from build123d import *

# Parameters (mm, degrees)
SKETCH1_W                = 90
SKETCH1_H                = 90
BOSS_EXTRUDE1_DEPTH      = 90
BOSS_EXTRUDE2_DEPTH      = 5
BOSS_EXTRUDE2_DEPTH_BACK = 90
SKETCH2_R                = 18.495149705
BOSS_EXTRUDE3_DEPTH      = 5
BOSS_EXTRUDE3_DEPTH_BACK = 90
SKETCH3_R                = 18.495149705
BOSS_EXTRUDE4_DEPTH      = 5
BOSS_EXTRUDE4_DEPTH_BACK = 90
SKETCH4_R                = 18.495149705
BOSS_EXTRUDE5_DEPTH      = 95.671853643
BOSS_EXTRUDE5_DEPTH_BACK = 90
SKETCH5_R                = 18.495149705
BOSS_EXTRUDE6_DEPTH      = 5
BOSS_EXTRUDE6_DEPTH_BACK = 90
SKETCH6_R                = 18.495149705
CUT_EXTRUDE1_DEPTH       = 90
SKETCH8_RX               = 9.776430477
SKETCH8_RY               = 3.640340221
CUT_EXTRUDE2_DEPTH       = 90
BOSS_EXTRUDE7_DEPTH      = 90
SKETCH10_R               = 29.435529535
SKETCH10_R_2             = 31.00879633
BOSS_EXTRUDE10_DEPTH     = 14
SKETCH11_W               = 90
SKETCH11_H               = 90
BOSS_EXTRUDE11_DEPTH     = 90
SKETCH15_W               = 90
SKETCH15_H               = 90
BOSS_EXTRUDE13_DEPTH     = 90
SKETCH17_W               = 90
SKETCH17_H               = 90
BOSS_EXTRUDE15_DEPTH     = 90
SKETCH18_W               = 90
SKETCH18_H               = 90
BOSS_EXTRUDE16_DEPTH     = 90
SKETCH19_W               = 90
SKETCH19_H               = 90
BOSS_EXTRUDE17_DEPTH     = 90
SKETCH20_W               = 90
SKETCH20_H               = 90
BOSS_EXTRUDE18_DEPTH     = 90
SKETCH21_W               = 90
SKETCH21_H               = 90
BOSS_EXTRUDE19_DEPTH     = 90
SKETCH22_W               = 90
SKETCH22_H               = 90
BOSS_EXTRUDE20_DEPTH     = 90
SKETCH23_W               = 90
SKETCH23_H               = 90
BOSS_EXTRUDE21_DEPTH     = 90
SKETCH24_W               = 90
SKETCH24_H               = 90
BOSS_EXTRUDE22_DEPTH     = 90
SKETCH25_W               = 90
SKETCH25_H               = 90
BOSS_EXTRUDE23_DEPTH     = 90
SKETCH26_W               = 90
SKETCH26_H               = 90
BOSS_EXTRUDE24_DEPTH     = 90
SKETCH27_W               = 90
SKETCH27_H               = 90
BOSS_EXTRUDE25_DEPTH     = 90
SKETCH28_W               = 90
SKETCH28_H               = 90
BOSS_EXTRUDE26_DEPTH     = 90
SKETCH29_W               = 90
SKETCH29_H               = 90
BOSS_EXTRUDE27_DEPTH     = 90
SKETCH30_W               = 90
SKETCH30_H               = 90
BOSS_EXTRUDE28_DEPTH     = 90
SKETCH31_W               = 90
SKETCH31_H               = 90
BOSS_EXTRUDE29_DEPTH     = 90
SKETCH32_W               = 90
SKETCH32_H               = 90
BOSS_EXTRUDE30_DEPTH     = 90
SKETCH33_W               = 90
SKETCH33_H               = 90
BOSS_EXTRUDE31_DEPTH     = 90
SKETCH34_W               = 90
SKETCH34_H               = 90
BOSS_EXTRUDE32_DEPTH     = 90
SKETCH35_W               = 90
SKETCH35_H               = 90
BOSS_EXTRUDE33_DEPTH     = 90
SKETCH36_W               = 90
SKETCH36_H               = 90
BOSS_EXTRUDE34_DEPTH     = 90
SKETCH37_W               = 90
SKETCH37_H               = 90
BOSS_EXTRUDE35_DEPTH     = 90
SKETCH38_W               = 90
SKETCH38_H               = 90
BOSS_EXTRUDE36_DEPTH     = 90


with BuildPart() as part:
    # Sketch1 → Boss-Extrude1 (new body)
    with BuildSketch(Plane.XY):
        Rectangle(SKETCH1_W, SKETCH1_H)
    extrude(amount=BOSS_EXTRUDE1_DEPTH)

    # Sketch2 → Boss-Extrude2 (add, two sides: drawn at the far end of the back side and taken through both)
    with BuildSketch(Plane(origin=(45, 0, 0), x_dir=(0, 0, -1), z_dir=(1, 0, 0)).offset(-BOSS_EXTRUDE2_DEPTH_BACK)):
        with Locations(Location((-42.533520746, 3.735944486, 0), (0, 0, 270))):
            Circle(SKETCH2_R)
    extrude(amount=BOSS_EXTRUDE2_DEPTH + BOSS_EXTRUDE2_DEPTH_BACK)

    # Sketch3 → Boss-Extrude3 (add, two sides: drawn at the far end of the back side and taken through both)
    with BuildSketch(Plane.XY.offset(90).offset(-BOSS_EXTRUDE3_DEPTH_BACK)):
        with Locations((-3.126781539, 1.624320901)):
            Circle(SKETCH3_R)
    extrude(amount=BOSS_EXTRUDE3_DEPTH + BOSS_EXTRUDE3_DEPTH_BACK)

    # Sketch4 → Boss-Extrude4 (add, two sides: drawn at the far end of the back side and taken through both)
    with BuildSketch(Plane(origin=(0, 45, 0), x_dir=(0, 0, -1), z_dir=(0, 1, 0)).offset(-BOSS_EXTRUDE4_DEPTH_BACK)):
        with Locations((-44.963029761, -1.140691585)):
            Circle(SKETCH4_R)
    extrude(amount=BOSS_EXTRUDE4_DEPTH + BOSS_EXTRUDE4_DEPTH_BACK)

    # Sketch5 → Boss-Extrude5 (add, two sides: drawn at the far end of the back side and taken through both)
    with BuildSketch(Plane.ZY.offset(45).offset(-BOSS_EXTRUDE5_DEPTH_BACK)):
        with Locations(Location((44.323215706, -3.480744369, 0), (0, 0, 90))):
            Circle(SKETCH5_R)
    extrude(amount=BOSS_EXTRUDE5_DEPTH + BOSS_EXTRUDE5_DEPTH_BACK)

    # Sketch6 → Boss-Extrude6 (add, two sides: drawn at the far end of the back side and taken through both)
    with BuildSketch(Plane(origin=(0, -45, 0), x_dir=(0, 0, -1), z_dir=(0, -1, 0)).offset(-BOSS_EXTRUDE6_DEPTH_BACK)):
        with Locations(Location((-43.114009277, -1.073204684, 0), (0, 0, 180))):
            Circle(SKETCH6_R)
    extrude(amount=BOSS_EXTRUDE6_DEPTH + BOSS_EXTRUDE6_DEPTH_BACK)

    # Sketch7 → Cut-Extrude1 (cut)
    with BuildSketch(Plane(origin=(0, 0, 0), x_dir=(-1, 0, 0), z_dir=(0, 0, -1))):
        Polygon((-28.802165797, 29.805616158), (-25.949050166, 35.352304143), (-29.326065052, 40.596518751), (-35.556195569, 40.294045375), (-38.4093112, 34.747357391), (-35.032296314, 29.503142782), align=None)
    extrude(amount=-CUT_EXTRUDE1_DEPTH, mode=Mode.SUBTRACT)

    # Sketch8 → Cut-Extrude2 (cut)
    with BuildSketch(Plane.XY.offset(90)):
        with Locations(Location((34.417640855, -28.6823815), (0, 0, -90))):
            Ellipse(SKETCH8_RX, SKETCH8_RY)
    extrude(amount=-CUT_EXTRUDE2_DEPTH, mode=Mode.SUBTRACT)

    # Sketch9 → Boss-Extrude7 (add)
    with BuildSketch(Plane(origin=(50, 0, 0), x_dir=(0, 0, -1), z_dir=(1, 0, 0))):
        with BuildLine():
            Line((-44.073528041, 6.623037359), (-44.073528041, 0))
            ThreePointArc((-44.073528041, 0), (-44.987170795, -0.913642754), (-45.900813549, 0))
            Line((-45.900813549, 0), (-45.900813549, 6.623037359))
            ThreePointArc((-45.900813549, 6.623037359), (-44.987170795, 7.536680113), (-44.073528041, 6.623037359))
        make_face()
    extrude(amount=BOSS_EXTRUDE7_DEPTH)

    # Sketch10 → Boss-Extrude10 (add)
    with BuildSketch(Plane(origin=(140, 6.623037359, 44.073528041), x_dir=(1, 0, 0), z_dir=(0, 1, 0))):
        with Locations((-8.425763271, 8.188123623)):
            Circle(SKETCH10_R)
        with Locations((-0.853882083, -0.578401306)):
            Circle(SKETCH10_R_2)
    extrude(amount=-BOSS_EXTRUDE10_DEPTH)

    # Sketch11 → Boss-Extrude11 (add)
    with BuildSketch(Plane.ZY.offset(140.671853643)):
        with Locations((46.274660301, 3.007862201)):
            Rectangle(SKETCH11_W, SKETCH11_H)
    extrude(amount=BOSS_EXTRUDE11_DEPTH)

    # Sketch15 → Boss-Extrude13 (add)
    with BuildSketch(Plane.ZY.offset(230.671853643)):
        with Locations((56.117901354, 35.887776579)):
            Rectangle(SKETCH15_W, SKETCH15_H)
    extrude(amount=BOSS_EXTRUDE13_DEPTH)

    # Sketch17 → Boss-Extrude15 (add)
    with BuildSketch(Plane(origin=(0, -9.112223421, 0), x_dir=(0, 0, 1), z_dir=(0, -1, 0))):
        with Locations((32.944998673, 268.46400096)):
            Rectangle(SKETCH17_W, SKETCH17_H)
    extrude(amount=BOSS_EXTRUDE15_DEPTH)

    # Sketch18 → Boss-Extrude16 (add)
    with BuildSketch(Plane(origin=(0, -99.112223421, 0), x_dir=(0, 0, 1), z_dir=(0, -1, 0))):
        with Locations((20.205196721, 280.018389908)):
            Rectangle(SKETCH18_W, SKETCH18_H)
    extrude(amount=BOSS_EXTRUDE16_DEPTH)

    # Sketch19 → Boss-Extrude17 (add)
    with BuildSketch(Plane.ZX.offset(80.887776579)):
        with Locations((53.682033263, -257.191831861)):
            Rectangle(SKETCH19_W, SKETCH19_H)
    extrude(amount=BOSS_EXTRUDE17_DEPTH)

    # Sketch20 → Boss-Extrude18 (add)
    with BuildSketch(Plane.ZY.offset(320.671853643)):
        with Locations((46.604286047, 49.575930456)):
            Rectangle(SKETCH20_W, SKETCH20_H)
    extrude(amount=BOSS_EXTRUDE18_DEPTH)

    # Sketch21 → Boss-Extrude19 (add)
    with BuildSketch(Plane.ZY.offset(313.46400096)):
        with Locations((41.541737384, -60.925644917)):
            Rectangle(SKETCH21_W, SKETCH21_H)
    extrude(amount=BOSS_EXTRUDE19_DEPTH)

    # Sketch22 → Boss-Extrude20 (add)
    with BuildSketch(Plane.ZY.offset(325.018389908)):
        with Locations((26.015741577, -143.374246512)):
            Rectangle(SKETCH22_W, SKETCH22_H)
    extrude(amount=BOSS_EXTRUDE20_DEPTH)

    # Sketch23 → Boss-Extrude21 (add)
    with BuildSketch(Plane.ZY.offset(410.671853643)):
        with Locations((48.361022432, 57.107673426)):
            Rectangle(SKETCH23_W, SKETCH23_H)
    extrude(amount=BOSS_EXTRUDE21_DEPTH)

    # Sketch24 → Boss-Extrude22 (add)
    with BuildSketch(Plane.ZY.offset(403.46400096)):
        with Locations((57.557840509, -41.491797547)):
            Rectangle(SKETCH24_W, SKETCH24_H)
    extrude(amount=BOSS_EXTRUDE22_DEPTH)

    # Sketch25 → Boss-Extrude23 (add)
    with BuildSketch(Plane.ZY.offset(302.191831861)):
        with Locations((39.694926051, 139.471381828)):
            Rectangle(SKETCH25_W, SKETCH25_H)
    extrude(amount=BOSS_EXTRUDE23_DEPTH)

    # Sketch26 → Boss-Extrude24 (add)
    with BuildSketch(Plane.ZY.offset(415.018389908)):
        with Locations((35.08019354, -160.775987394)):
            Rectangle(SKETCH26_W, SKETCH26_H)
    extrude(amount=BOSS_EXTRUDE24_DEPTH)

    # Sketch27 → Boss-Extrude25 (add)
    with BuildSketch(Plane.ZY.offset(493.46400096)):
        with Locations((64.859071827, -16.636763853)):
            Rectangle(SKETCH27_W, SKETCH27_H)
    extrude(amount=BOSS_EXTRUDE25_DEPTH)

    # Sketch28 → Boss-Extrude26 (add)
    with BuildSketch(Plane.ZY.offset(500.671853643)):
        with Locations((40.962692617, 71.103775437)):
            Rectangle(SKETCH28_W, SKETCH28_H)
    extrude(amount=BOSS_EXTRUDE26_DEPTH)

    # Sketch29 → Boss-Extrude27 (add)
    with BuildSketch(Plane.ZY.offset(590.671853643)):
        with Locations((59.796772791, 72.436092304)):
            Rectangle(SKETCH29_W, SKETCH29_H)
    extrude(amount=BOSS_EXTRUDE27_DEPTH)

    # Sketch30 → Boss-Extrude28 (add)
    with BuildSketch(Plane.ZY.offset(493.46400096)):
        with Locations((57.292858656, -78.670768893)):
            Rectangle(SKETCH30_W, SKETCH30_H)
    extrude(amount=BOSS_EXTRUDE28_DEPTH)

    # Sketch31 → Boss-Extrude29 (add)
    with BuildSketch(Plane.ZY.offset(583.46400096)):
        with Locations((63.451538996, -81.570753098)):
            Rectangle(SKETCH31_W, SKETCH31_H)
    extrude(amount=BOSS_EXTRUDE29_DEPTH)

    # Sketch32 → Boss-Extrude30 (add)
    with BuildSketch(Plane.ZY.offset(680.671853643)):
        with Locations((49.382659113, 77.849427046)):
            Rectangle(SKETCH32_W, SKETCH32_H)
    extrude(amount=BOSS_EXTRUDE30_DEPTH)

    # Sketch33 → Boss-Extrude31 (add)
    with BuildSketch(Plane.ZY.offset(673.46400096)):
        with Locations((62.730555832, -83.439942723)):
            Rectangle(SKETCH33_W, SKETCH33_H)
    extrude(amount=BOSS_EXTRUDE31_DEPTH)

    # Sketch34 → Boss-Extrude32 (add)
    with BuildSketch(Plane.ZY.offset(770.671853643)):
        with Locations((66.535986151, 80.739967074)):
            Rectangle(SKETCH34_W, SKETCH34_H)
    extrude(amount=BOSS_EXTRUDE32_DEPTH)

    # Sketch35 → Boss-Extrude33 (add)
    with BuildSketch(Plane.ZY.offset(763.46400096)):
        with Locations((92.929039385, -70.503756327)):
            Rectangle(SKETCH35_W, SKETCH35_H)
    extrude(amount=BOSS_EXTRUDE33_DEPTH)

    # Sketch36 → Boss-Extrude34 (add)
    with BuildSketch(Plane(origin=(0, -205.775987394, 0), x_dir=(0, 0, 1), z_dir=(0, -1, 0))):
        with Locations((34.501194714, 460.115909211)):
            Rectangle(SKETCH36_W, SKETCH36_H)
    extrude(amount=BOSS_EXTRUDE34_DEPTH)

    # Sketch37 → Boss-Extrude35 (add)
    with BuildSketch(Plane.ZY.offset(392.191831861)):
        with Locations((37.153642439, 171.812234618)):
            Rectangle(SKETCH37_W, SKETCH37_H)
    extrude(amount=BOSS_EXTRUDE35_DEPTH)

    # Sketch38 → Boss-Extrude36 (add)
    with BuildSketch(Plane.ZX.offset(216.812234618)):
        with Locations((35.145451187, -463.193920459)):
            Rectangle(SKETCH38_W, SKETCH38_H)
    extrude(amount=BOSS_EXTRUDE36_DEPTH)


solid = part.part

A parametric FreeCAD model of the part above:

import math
import FreeCAD as App
import Part
import Sketcher
from FreeCAD import Vector
Q = App.Units.Quantity

doc = App.newDocument("Part")
body = doc.addObject("PartDesign::Body", "Body")

# Sketch on XY plane
sketch1 = doc.addObject("Sketcher::SketchObject", "Sketch")
body.addObject(sketch1)
sketch1.AttachmentSupport = (doc.XY_Plane, [""])
sketch1.MapMode = "FlatFace"
sketch1.addGeometry([
    Part.LineSegment(Vector(-45, 45, 0), Vector(-45, -45, 0)),
    Part.LineSegment(Vector(-45, -45, 0), Vector(45, -45, 0)),
    Part.LineSegment(Vector(45, -45, 0), Vector(45, 45, 0)),
    Part.LineSegment(Vector(45, 45, 0), Vector(-45, 45, 0)),
], False)
sketch1.addConstraint([
    Sketcher.Constraint("Coincident", 0, 2, 1, 1),
    Sketcher.Constraint("Coincident", 1, 2, 2, 1),
    Sketcher.Constraint("Coincident", 2, 2, 3, 1),
    Sketcher.Constraint("Coincident", 3, 2, 0, 1),
    Sketcher.Constraint("Vertical", 0),
    Sketcher.Constraint("Horizontal", 1),
    Sketcher.Constraint("Vertical", 2),
    Sketcher.Constraint("Horizontal", 3),
    Sketcher.Constraint("Symmetric", 0, 2, 2, 2, -1, 1),
    Sketcher.Constraint("Equal", 3, 0),
    Sketcher.Constraint("DistanceX", 1, 1, 1, 2, Q("90 mm")),
])
pad1 = doc.addObject("PartDesign::Pad", "Pad")
body.addObject(pad1)
pad1.Profile = sketch1
pad1.Length = 90

# Sketch on YZ plane
sketch2 = doc.addObject("Sketcher::SketchObject", "Sketch001")
body.addObject(sketch2)
sketch2.AttachmentSupport = (doc.YZ_Plane, [""])
sketch2.MapMode = "FlatFace"
sketch2.AttachmentOffset = App.Placement(Vector(0, 0, 45), App.Rotation())
sketch2.addGeometry(Part.Circle(Vector(4, 43, 0), Vector(0, 0, 1), 18), False)
sketch2.addConstraint([
    Sketcher.Constraint("Diameter", 0, Q("36.990299 mm")),
    Sketcher.Constraint("DistanceY", -1, 1, 0, 3, Q("42.533521 mm")),
    Sketcher.Constraint("DistanceX", -1, 1, 0, 3, Q("3.735944 mm")),
])
pad2 = doc.addObject("PartDesign::Pad", "Pad001")
body.addObject(pad2)
pad2.Profile = sketch2
pad2.Type = "TwoLengths"
pad2.Length = 5
pad2.Length2 = 90

# Sketch on XY plane
sketch3 = doc.addObject("Sketcher::SketchObject", "Sketch002")
body.addObject(sketch3)
sketch3.AttachmentSupport = (doc.XY_Plane, [""])
sketch3.MapMode = "FlatFace"
sketch3.AttachmentOffset = App.Placement(Vector(0, 0, 90), App.Rotation())
sketch3.addGeometry(Part.Circle(Vector(-3, 2, 0), Vector(0, 0, 1), 18), False)
sketch3.addConstraint([
    Sketcher.Constraint("Diameter", 0, Q("36.990299 mm")),
    Sketcher.Constraint("DistanceX", 0, 3, -1, 1, Q("3.126782 mm")),
    Sketcher.Constraint("DistanceY", -1, 1, 0, 3, Q("1.624321 mm")),
])
pad3 = doc.addObject("PartDesign::Pad", "Pad002")
body.addObject(pad3)
pad3.Profile = sketch3
pad3.Type = "TwoLengths"
pad3.Length = 5
pad3.Length2 = 90

# Sketch on XZ plane
sketch4 = doc.addObject("Sketcher::SketchObject", "Sketch003")
body.addObject(sketch4)
sketch4.AttachmentSupport = (doc.XZ_Plane, [""])
sketch4.MapMode = "FlatFace"
sketch4.AttachmentOffset = App.Placement(Vector(0, 0, -45), App.Rotation())
sketch4.addGeometry(Part.Circle(Vector(1, 45, 0), Vector(0, 0, 1), 18), False)
sketch4.addConstraint([
    Sketcher.Constraint("Diameter", 0, Q("36.990299 mm")),
    Sketcher.Constraint("DistanceX", -1, 1, 0, 3, Q("1.140692 mm")),
    Sketcher.Constraint("DistanceY", -1, 1, 0, 3, Q("44.96303 mm")),
])
pad4 = doc.addObject("PartDesign::Pad", "Pad003")
body.addObject(pad4)
pad4.Profile = sketch4
pad4.Type = "TwoLengths"
pad4.Length = 5
pad4.Length2 = 90
pad4.Reversed = True

# Sketch on YZ plane
sketch5 = doc.addObject("Sketcher::SketchObject", "Sketch004")
body.addObject(sketch5)
sketch5.AttachmentSupport = (doc.YZ_Plane, [""])
sketch5.MapMode = "FlatFace"
sketch5.AttachmentOffset = App.Placement(Vector(0, 0, -45), App.Rotation())
sketch5.addGeometry(Part.Circle(Vector(-3, 44, 0), Vector(0, 0, 1), 18), False)
sketch5.addConstraint([
    Sketcher.Constraint("Diameter", 0, Q("36.990299 mm")),
    Sketcher.Constraint("DistanceX", 0, 3, -1, 1, Q("3.480744 mm")),
    Sketcher.Constraint("DistanceY", -1, 1, 0, 3, Q("44.323216 mm")),
])
pad5 = doc.addObject("PartDesign::Pad", "Pad004")
body.addObject(pad5)
pad5.Profile = sketch5
pad5.Type = "TwoLengths"
pad5.Length = 95.671854
pad5.Length2 = 90
pad5.Reversed = True

# Sketch on XZ plane
sketch6 = doc.addObject("Sketcher::SketchObject", "Sketch005")
body.addObject(sketch6)
sketch6.AttachmentSupport = (doc.XZ_Plane, [""])
sketch6.MapMode = "FlatFace"
sketch6.AttachmentOffset = App.Placement(Vector(0, 0, 45), App.Rotation())
sketch6.addGeometry(Part.Circle(Vector(-1, 43, 0), Vector(0, 0, 1), 18), False)
sketch6.addConstraint([
    Sketcher.Constraint("Diameter", 0, Q("36.990299 mm")),
    Sketcher.Constraint("DistanceY", -1, 1, 0, 3, Q("43.114009 mm")),
    Sketcher.Constraint("DistanceX", 0, 3, -1, 1, Q("1.073205 mm")),
])
pad6 = doc.addObject("PartDesign::Pad", "Pad005")
body.addObject(pad6)
pad6.Profile = sketch6
pad6.Type = "TwoLengths"
pad6.Length = 5
pad6.Length2 = 90

# Sketch on XY plane
sketch7 = doc.addObject("Sketcher::SketchObject", "Sketch006")
body.addObject(sketch7)
sketch7.AttachmentSupport = (doc.XY_Plane, [""])
sketch7.MapMode = "FlatFace"
sketch7.addGeometry([
    Part.LineSegment(Vector(29, 30, 0), Vector(26, 35, 0)),  # 0
    Part.LineSegment(Vector(26, 35, 0), Vector(29, 41, 0)),  # 1
    Part.LineSegment(Vector(29, 41, 0), Vector(36, 40, 0)),  # 2
    Part.LineSegment(Vector(36, 40, 0), Vector(38, 35, 0)),  # 3
    Part.LineSegment(Vector(38, 35, 0), Vector(35, 30, 0)),  # 4
    Part.LineSegment(Vector(35, 30, 0), Vector(29, 30, 0)),  # 5
], False)
sketch7.addConstraint([
    Sketcher.Constraint("Coincident", 0, 2, 1, 1),
    Sketcher.Constraint("Coincident", 1, 2, 2, 1),
    Sketcher.Constraint("Coincident", 2, 2, 3, 1),
    Sketcher.Constraint("Coincident", 3, 2, 4, 1),
    Sketcher.Constraint("Coincident", 4, 2, 5, 1),
    Sketcher.Constraint("Coincident", 5, 2, 0, 1),
    Sketcher.Constraint("Parallel", 0, 3),
    Sketcher.Constraint("Parallel", 1, 4),
    Sketcher.Constraint("Parallel", 2, 5),
    Sketcher.Constraint("Equal", 0, 1),
    Sketcher.Constraint("Equal", 1, 2),
    Sketcher.Constraint("Equal", 2, 3),
    Sketcher.Constraint("DistanceX", 4, 2, 2, 2, Q("0.523899 mm")),
    Sketcher.Constraint("Distance", 0, Q("6.237469 mm")),
    Sketcher.Constraint("DistanceX", -1, 1, 0, 2, Q("25.94905 mm")),
    Sketcher.Constraint("DistanceY", -1, 1, 1, 2, Q("40.596519 mm")),
    Sketcher.Constraint("DistanceX", -1, 1, 3, 2, Q("38.409311 mm")),
    Sketcher.Constraint("DistanceX", 1, 2, 2, 2, Q("6.230131 mm")),
])
pocket1 = doc.addObject("PartDesign::Pocket", "Pocket")
body.addObject(pocket1)
pocket1.Profile = sketch7
pocket1.Length = 90
pocket1.Reversed = True

# Sketch on XY plane
sketch8 = doc.addObject("Sketcher::SketchObject", "Sketch007")
body.addObject(sketch8)
sketch8.AttachmentSupport = (doc.XY_Plane, [""])
sketch8.MapMode = "FlatFace"
sketch8.AttachmentOffset = App.Placement(Vector(0, 0, 90), App.Rotation())
sketch8.addGeometry(Part.Ellipse(Vector(34.417641, -38.458812, 0), Vector(38.057981, -28.682382, 0), Vector(34.417641, -28.682382, 0)), False)
sketch8.addConstraint(Sketcher.Constraint("Block", 0))
pocket2 = doc.addObject("PartDesign::Pocket", "Pocket001")
body.addObject(pocket2)
pocket2.Profile = sketch8
pocket2.Length = 90

# Sketch on YZ plane
sketch9 = doc.addObject("Sketcher::SketchObject", "Sketch008")
body.addObject(sketch9)
sketch9.AttachmentSupport = (doc.YZ_Plane, [""])
sketch9.MapMode = "FlatFace"
sketch9.AttachmentOffset = App.Placement(Vector(0, 0, 50), App.Rotation())
sketch9.addGeometry([
    Part.LineSegment(Vector(0, 44.1, 0), Vector(6.6, 44.1, 0)),
    Part.ArcOfCircle(Part.Circle(Vector(6.6, 45, 0), Vector(0, 0, 1), 0.9), math.radians(-90), math.radians(90)),
    Part.LineSegment(Vector(6.6, 45.9, 0), Vector(0, 45.9, 0)),
    Part.ArcOfCircle(Part.Circle(Vector(0, 45, 0), Vector(0, 0, 1), 0.9), math.radians(90), math.radians(270)),
], False)
sketch9.addConstraint([
    Sketcher.Constraint("Tangent", 0, 2, 1, 1),
    Sketcher.Constraint("Tangent", 1, 2, 2, 1),
    Sketcher.Constraint("Tangent", 2, 2, 3, 1),
    Sketcher.Constraint("Tangent", 3, 2, 0, 1),
    Sketcher.Constraint("Horizontal", 0),
    Sketcher.Constraint("Horizontal", 2),
    Sketcher.Constraint("PointOnObject", 3, 3, -2),
    Sketcher.Constraint("Radius", 1, Q("0.913643 mm")),
    Sketcher.Constraint("DistanceX", 0, 1, 0, 2, Q("6.623037 mm")),
    Sketcher.Constraint("DistanceY", -1, 1, 1, 3, Q("44.987171 mm")),
])
pad7 = doc.addObject("PartDesign::Pad", "Pad006")
body.addObject(pad7)
pad7.Profile = sketch9
pad7.Length = 90

# Sketch on XZ plane
sketch10 = doc.addObject("Sketcher::SketchObject", "Sketch009")
body.addObject(sketch10)
sketch10.AttachmentSupport = (doc.XZ_Plane, [""])
sketch10.MapMode = "FlatFace"
sketch10.AttachmentOffset = App.Placement(Vector(0, 0, -6.623037), App.Rotation())
sketch10.addGeometry([
    Part.ArcOfCircle(Part.Circle(Vector(139, 45, 0), Vector(0, 0, 1), 31), math.radians(-59), math.radians(158)),
    Part.ArcOfCircle(Part.Circle(Vector(132, 36, 0), Vector(0, 0, 1), 29), math.radians(136), math.radians(322)),
], False)
sketch10.addConstraint([
    Sketcher.Constraint("Coincident", 0, 1, 1, 2),
    Sketcher.Constraint("Coincident", 1, 1, 0, 2),
    Sketcher.Constraint("Radius", 1, Q("29.43553 mm")),
    Sketcher.Constraint("Radius", 0, Q("31.008796 mm")),
    Sketcher.Constraint("DistanceY", -1, 1, 0, 3, Q("44.651929 mm")),
    Sketcher.Constraint("DistanceY", -1, 1, 1, 1, Q("56.371481 mm")),
    Sketcher.Constraint("DistanceX", 1, 3, 0, 3, Q("7.571881 mm")),
    Sketcher.Constraint("DistanceX", -1, 1, 0, 3, Q("139.146118 mm")),
])
pad8 = doc.addObject("PartDesign::Pad", "Pad007")
body.addObject(pad8)
pad8.Profile = sketch10
pad8.Length = 14

# Sketch on YZ plane
sketch11 = doc.addObject("Sketcher::SketchObject", "Sketch010")
body.addObject(sketch11)
sketch11.AttachmentSupport = (doc.YZ_Plane, [""])
sketch11.MapMode = "FlatFace"
sketch11.AttachmentOffset = App.Placement(Vector(0, 0, -140.671854), App.Rotation())
sketch11.addGeometry([
    Part.LineSegment(Vector(48, 1, 0), Vector(-42, 1, 0)),
    Part.LineSegment(Vector(-42, 1, 0), Vector(-42, 91, 0)),
    Part.LineSegment(Vector(-42, 91, 0), Vector(48, 91, 0)),
    Part.LineSegment(Vector(48, 91, 0), Vector(48, 1, 0)),
], False)
sketch11.addConstraint([
    Sketcher.Constraint("Coincident", 0, 2, 1, 1),
    Sketcher.Constraint("Coincident", 1, 2, 2, 1),
    Sketcher.Constraint("Coincident", 2, 2, 3, 1),
    Sketcher.Constraint("Coincident", 3, 2, 0, 1),
    Sketcher.Constraint("Horizontal", 0),
    Sketcher.Constraint("Vertical", 1),
    Sketcher.Constraint("Horizontal", 2),
    Sketcher.Constraint("Vertical", 3),
    Sketcher.Constraint("Equal", 2, 1),
    Sketcher.Constraint("DistanceX", 0, 2, 0, 1, Q("90 mm")),
    Sketcher.Constraint("DistanceY", -1, 1, 0, 2, Q("1.27466 mm")),
    Sketcher.Constraint("DistanceX", 0, 2, -1, 1, Q("41.992138 mm")),
])
pad9 = doc.addObject("PartDesign::Pad", "Pad008")
body.addObject(pad9)
pad9.Profile = sketch11
pad9.Length = 90
pad9.Reversed = True

# Sketch on YZ plane
sketch12 = doc.addObject("Sketcher::SketchObject", "Sketch011")
body.addObject(sketch12)
sketch12.AttachmentSupport = (doc.YZ_Plane, [""])
sketch12.MapMode = "FlatFace"
sketch12.AttachmentOffset = App.Placement(Vector(0, 0, -230.671854), App.Rotation())
sketch12.addGeometry([
    Part.LineSegment(Vector(81, 11, 0), Vector(-9, 11, 0)),
    Part.LineSegment(Vector(-9, 11, 0), Vector(-9, 101, 0)),
    Part.LineSegment(Vector(-9, 101, 0), Vector(81, 101, 0)),
    Part.LineSegment(Vector(81, 101, 0), Vector(81, 11, 0)),
], False)
sketch12.addConstraint([
    Sketcher.Constraint("Coincident", 0, 2, 1, 1),
    Sketcher.Constraint("Coincident", 1, 2, 2, 1),
    Sketcher.Constraint("Coincident", 2, 2, 3, 1),
    Sketcher.Constraint("Coincident", 3, 2, 0, 1),
    Sketcher.Constraint("Horizontal", 0),
    Sketcher.Constraint("Vertical", 1),
    Sketcher.Constraint("Horizontal", 2),
    Sketcher.Constraint("Vertical", 3),
    Sketcher.Constraint("Equal", 2, 1),
    Sketcher.Constraint("DistanceX", 0, 2, 0, 1, Q("90 mm")),
    Sketcher.Constraint("DistanceY", -1, 1, 0, 2, Q("11.117901 mm")),
    Sketcher.Constraint("DistanceX", 0, 2, -1, 1, Q("9.112223 mm")),
])
pad10 = doc.addObject("PartDesign::Pad", "Pad009")
body.addObject(pad10)
pad10.Profile = sketch12
pad10.Length = 90
pad10.Reversed = True

# Sketch on XZ plane
sketch13 = doc.addObject("Sketcher::SketchObject", "Sketch012")
body.addObject(sketch13)
sketch13.AttachmentSupport = (doc.XZ_Plane, [""])
sketch13.MapMode = "FlatFace"
sketch13.AttachmentOffset = App.Placement(Vector(0, 0, 9.112223), App.Rotation())
sketch13.addGeometry([
    Part.LineSegment(Vector(-313, -12, 0), Vector(-223, -12, 0)),
    Part.LineSegment(Vector(-223, -12, 0), Vector(-223, 78, 0)),
    Part.LineSegment(Vector(-223, 78, 0), Vector(-313, 78, 0)),
    Part.LineSegment(Vector(-313, 78, 0), Vector(-313, -12, 0)),
], False)
sketch13.addConstraint([
    Sketcher.Constraint("Coincident", 0, 2, 1, 1),
    Sketcher.Constraint("Coincident", 1, 2, 2, 1),
    Sketcher.Constraint("Coincident", 2, 2, 3, 1),
    Sketcher.Constraint("Coincident", 3, 2, 0, 1),
    Sketcher.Constraint("Horizontal", 0),
    Sketcher.Constraint("Vertical", 1),
    Sketcher.Constraint("Horizontal", 2),
    Sketcher.Constraint("Vertical", 3),
    Sketcher.Constraint("Equal", 2, 1),
    Sketcher.Constraint("DistanceX", 0, 1, 0, 2, Q("90 mm")),
    Sketcher.Constraint("DistanceX", 0, 2, -1, 1, Q("223.464001 mm")),
    Sketcher.Constraint("DistanceY", 0, 2, -1, 1, Q("12.055001 mm")),
])
pad11 = doc.addObject("PartDesign::Pad", "Pad010")
body.addObject(pad11)
pad11.Profile = sketch13
pad11.Length = 90

# Sketch on XZ plane
sketch14 = doc.addObject("Sketcher::SketchObject", "Sketch013")
body.addObject(sketch14)
sketch14.AttachmentSupport = (doc.XZ_Plane, [""])
sketch14.MapMode = "FlatFace"
sketch14.AttachmentOffset = App.Placement(Vector(0, 0, 99.112223), App.Rotation())
sketch14.addGeometry([
    Part.LineSegment(Vector(-325, -25, 0), Vector(-235, -25, 0)),
    Part.LineSegment(Vector(-235, -25, 0), Vector(-235, 65, 0)),
    Part.LineSegment(Vector(-235, 65, 0), Vector(-325, 65, 0)),
    Part.LineSegment(Vector(-325, 65, 0), Vector(-325, -25, 0)),
], False)
sketch14.addConstraint([
    Sketcher.Constraint("Coincident", 0, 2, 1, 1),
    Sketcher.Constraint("Coincident", 1, 2, 2, 1),
    Sketcher.Constraint("Coincident", 2, 2, 3, 1),
    Sketcher.Constraint("Coincident", 3, 2, 0, 1),
    Sketcher.Constraint("Horizontal", 0),
    Sketcher.Constraint("Vertical", 1),
    Sketcher.Constraint("Horizontal", 2),
    Sketcher.Constraint("Vertical", 3),
    Sketcher.Constraint("Equal", 2, 1),
    Sketcher.Constraint("DistanceX", 0, 1, 0, 2, Q("90 mm")),
    Sketcher.Constraint("DistanceX", 0, 2, -1, 1, Q("235.01839 mm")),
    Sketcher.Constraint("DistanceY", 0, 2, -1, 1, Q("24.794803 mm")),
])
pad12 = doc.addObject("PartDesign::Pad", "Pad011")
body.addObject(pad12)
pad12.Profile = sketch14
pad12.Length = 90

# Sketch on XZ plane
sketch15 = doc.addObject("Sketcher::SketchObject", "Sketch014")
body.addObject(sketch15)
sketch15.AttachmentSupport = (doc.XZ_Plane, [""])
sketch15.MapMode = "FlatFace"
sketch15.AttachmentOffset = App.Placement(Vector(0, 0, -80.887777), App.Rotation())
sketch15.addGeometry([
    Part.LineSegment(Vector(-212, 9, 0), Vector(-302, 9, 0)),
    Part.LineSegment(Vector(-302, 9, 0), Vector(-302, 99, 0)),
    Part.LineSegment(Vector(-302, 99, 0), Vector(-212, 99, 0)),
    Part.LineSegment(Vector(-212, 99, 0), Vector(-212, 9, 0)),
], False)
sketch15.addConstraint([
    Sketcher.Constraint("Coincident", 0, 2, 1, 1),
    Sketcher.Constraint("Coincident", 1, 2, 2, 1),
    Sketcher.Constraint("Coincident", 2, 2, 3, 1),
    Sketcher.Constraint("Coincident", 3, 2, 0, 1),
    Sketcher.Constraint("Horizontal", 0),
    Sketcher.Constraint("Vertical", 1),
    Sketcher.Constraint("Horizontal", 2),
    Sketcher.Constraint("Vertical", 3),
    Sketcher.Constraint("Equal", 2, 1),
    Sketcher.Constraint("DistanceX", 0, 2, 0, 1, Q("90 mm")),
    Sketcher.Constraint("DistanceX", 0, 2, -1, 1, Q("302.191832 mm")),
    Sketcher.Constraint("DistanceY", -1, 1, 0, 2, Q("8.682033 mm")),
])
pad13 = doc.addObject("PartDesign::Pad", "Pad012")
body.addObject(pad13)
pad13.Profile = sketch15
pad13.Length = 90
pad13.Reversed = True

# Sketch on YZ plane
sketch16 = doc.addObject("Sketcher::SketchObject", "Sketch015")
body.addObject(sketch16)
sketch16.AttachmentSupport = (doc.YZ_Plane, [""])
sketch16.MapMode = "FlatFace"
sketch16.AttachmentOffset = App.Placement(Vector(0, 0, -320.671854), App.Rotation())
sketch16.addGeometry([
    Part.LineSegment(Vector(95, 2, 0), Vector(5, 2, 0)),
    Part.LineSegment(Vector(5, 2, 0), Vector(5, 92, 0)),
    Part.LineSegment(Vector(5, 92, 0), Vector(95, 92, 0)),
    Part.LineSegment(Vector(95, 92, 0), Vector(95, 2, 0)),
], False)
sketch16.addConstraint([
    Sketcher.Constraint("Coincident", 0, 2, 1, 1),
    Sketcher.Constraint("Coincident", 1, 2, 2, 1),
    Sketcher.Constraint("Coincident", 2, 2, 3, 1),
    Sketcher.Constraint("Coincident", 3, 2, 0, 1),
    Sketcher.Constraint("Horizontal", 0),
    Sketcher.Constraint("Vertical", 1),
    Sketcher.Constraint("Horizontal", 2),
    Sketcher.Constraint("Vertical", 3),
    Sketcher.Constraint("Equal", 2, 1),
    Sketcher.Constraint("DistanceX", 0, 2, 0, 1, Q("90 mm")),
    Sketcher.Constraint("DistanceX", -1, 1, 0, 2, Q("4.57593 mm")),
    Sketcher.Constraint("DistanceY", -1, 1, 0, 2, Q("1.604286 mm")),
])
pad14 = doc.addObject("PartDesign::Pad", "Pad013")
body.addObject(pad14)
pad14.Profile = sketch16
pad14.Length = 90
pad14.Reversed = True

# Sketch on YZ plane
sketch17 = doc.addObject("Sketcher::SketchObject", "Sketch016")
body.addObject(sketch17)
sketch17.AttachmentSupport = (doc.YZ_Plane, [""])
sketch17.MapMode = "FlatFace"
sketch17.AttachmentOffset = App.Placement(Vector(0, 0, -313.464001), App.Rotation())
sketch17.addGeometry([
    Part.LineSegment(Vector(-16, -3, 0), Vector(-106, -3, 0)),
    Part.LineSegment(Vector(-106, -3, 0), Vector(-106, 87, 0)),
    Part.LineSegment(Vector(-106, 87, 0), Vector(-16, 87, 0)),
    Part.LineSegment(Vector(-16, 87, 0), Vector(-16, -3, 0)),
], False)
sketch17.addConstraint([
    Sketcher.Constraint("Coincident", 0, 2, 1, 1),
    Sketcher.Constraint("Coincident", 1, 2, 2, 1),
    Sketcher.Constraint("Coincident", 2, 2, 3, 1),
    Sketcher.Constraint("Coincident", 3, 2, 0, 1),
    Sketcher.Constraint("Horizontal", 0),
    Sketcher.Constraint("Vertical", 1),
    Sketcher.Constraint("Horizontal", 2),
    Sketcher.Constraint("Vertical", 3),
    Sketcher.Constraint("Equal", 2, 1),
    Sketcher.Constraint("DistanceX", 0, 2, 0, 1, Q("90 mm")),
    Sketcher.Constraint("DistanceX", 0, 2, -1, 1, Q("105.925645 mm")),
    Sketcher.Constraint("DistanceY", 0, 2, -1, 1, Q("3.458263 mm")),
])
pad15 = doc.addObject("PartDesign::Pad", "Pad014")
body.addObject(pad15)
pad15.Profile = sketch17
pad15.Length = 90
pad15.Reversed = True

# Sketch on YZ plane
sketch18 = doc.addObject("Sketcher::SketchObject", "Sketch017")
body.addObject(sketch18)
sketch18.AttachmentSupport = (doc.YZ_Plane, [""])
sketch18.MapMode = "FlatFace"
sketch18.AttachmentOffset = App.Placement(Vector(0, 0, -325.01839), App.Rotation())
sketch18.addGeometry([
    Part.LineSegment(Vector(-98, -19, 0), Vector(-188, -19, 0)),
    Part.LineSegment(Vector(-188, -19, 0), Vector(-188, 71, 0)),
    Part.LineSegment(Vector(-188, 71, 0), Vector(-98, 71, 0)),
    Part.LineSegment(Vector(-98, 71, 0), Vector(-98, -19, 0)),
], False)
sketch18.addConstraint([
    Sketcher.Constraint("Coincident", 0, 2, 1, 1),
    Sketcher.Constraint("Coincident", 1, 2, 2, 1),
    Sketcher.Constraint("Coincident", 2, 2, 3, 1),
    Sketcher.Constraint("Coincident", 3, 2, 0, 1),
    Sketcher.Constraint("Horizontal", 0),
    Sketcher.Constraint("Vertical", 1),
    Sketcher.Constraint("Horizontal", 2),
    Sketcher.Constraint("Vertical", 3),
    Sketcher.Constraint("Equal", 2, 1),
    Sketcher.Constraint("DistanceX", 0, 2, 0, 1, Q("90 mm")),
    Sketcher.Constraint("DistanceY", 0, 2, -1, 1, Q("18.984258 mm")),
    Sketcher.Constraint("DistanceX", 0, 2, -1, 1, Q("188.374247 mm")),
])
pad16 = doc.addObject("PartDesign::Pad", "Pad015")
body.addObject(pad16)
pad16.Profile = sketch18
pad16.Length = 90
pad16.Reversed = True

# Sketch on YZ plane
sketch19 = doc.addObject("Sketcher::SketchObject", "Sketch018")
body.addObject(sketch19)
sketch19.AttachmentSupport = (doc.YZ_Plane, [""])
sketch19.MapMode = "FlatFace"
sketch19.AttachmentOffset = App.Placement(Vector(0, 0, -410.671854), App.Rotation())
sketch19.addGeometry([
    Part.LineSegment(Vector(102, 3, 0), Vector(12, 3, 0)),
    Part.LineSegment(Vector(12, 3, 0), Vector(12, 93, 0)),
    Part.LineSegment(Vector(12, 93, 0), Vector(102, 93, 0)),
    Part.LineSegment(Vector(102, 93, 0), Vector(102, 3, 0)),
], False)
sketch19.addConstraint([
    Sketcher.Constraint("Coincident", 0, 2, 1, 1),
    Sketcher.Constraint("Coincident", 1, 2, 2, 1),
    Sketcher.Constraint("Coincident", 2, 2, 3, 1),
    Sketcher.Constraint("Coincident", 3, 2, 0, 1),
    Sketcher.Constraint("Horizontal", 0),
    Sketcher.Constraint("Vertical", 1),
    Sketcher.Constraint("Horizontal", 2),
    Sketcher.Constraint("Vertical", 3),
    Sketcher.Constraint("Equal", 2, 1),
    Sketcher.Constraint("DistanceX", 0, 2, 0, 1, Q("90 mm")),
    Sketcher.Constraint("DistanceX", -1, 1, 0, 2, Q("12.107673 mm")),
    Sketcher.Constraint("DistanceY", -1, 1, 0, 2, Q("3.361022 mm")),
])
pad17 = doc.addObject("PartDesign::Pad", "Pad016")
body.addObject(pad17)
pad17.Profile = sketch19
pad17.Length = 90
pad17.Reversed = True

# Sketch on YZ plane
sketch20 = doc.addObject("Sketcher::SketchObject", "Sketch019")
body.addObject(sketch20)
sketch20.AttachmentSupport = (doc.YZ_Plane, [""])
sketch20.MapMode = "FlatFace"
sketch20.AttachmentOffset = App.Placement(Vector(0, 0, -403.464001), App.Rotation())
sketch20.addGeometry([
    Part.LineSegment(Vector(4, 13, 0), Vector(-86, 13, 0)),
    Part.LineSegment(Vector(-86, 13, 0), Vector(-86, 103, 0)),
    Part.LineSegment(Vector(-86, 103, 0), Vector(4, 103, 0)),
    Part.LineSegment(Vector(4, 103, 0), Vector(4, 13, 0)),
], False)
sketch20.addConstraint([
    Sketcher.Constraint("Coincident", 0, 2, 1, 1),
    Sketcher.Constraint("Coincident", 1, 2, 2, 1),
    Sketcher.Constraint("Coincident", 2, 2, 3, 1),
    Sketcher.Constraint("Coincident", 3, 2, 0, 1),
    Sketcher.Constraint("Horizontal", 0),
    Sketcher.Constraint("Vertical", 1),
    Sketcher.Constraint("Horizontal", 2),
    Sketcher.Constraint("Vertical", 3),
    Sketcher.Constraint("Equal", 2, 1),
    Sketcher.Constraint("DistanceX", 0, 2, 0, 1, Q("90 mm")),
    Sketcher.Constraint("DistanceY", -1, 1, 0, 2, Q("12.557841 mm")),
    Sketcher.Constraint("DistanceX", 0, 2, -1, 1, Q("86.491798 mm")),
])
pad18 = doc.addObject("PartDesign::Pad", "Pad017")
body.addObject(pad18)
pad18.Profile = sketch20
pad18.Length = 90
pad18.Reversed = True

# Sketch on YZ plane
sketch21 = doc.addObject("Sketcher::SketchObject", "Sketch020")
body.addObject(sketch21)
sketch21.AttachmentSupport = (doc.YZ_Plane, [""])
sketch21.MapMode = "FlatFace"
sketch21.AttachmentOffset = App.Placement(Vector(0, 0, -302.191832), App.Rotation())
sketch21.addGeometry([
    Part.LineSegment(Vector(184, -5, 0), Vector(94, -5, 0)),
    Part.LineSegment(Vector(94, -5, 0), Vector(94, 85, 0)),
    Part.LineSegment(Vector(94, 85, 0), Vector(184, 85, 0)),
    Part.LineSegment(Vector(184, 85, 0), Vector(184, -5, 0)),
], False)
sketch21.addConstraint([
    Sketcher.Constraint("Coincident", 0, 2, 1, 1),
    Sketcher.Constraint("Coincident", 1, 2, 2, 1),
    Sketcher.Constraint("Coincident", 2, 2, 3, 1),
    Sketcher.Constraint("Coincident", 3, 2, 0, 1),
    Sketcher.Constraint("Horizontal", 0),
    Sketcher.Constraint("Vertical", 1),
    Sketcher.Constraint("Horizontal", 2),
    Sketcher.Constraint("Vertical", 3),
    Sketcher.Constraint("Equal", 2, 1),
    Sketcher.Constraint("DistanceX", 0, 2, 0, 1, Q("90 mm")),
    Sketcher.Constraint("DistanceX", -1, 1, 0, 2, Q("94.471382 mm")),
    Sketcher.Constraint("DistanceY", 0, 2, -1, 1, Q("5.305074 mm")),
])
pad19 = doc.addObject("PartDesign::Pad", "Pad018")
body.addObject(pad19)
pad19.Profile = sketch21
pad19.Length = 90
pad19.Reversed = True

# Sketch on YZ plane
sketch22 = doc.addObject("Sketcher::SketchObject", "Sketch021")
body.addObject(sketch22)
sketch22.AttachmentSupport = (doc.YZ_Plane, [""])
sketch22.MapMode = "FlatFace"
sketch22.AttachmentOffset = App.Placement(Vector(0, 0, -415.01839), App.Rotation())
sketch22.addGeometry([
    Part.LineSegment(Vector(-116, -10, 0), Vector(-206, -10, 0)),
    Part.LineSegment(Vector(-206, -10, 0), Vector(-206, 80, 0)),
    Part.LineSegment(Vector(-206, 80, 0), Vector(-116, 80, 0)),
    Part.LineSegment(Vector(-116, 80, 0), Vector(-116, -10, 0)),
], False)
sketch22.addConstraint([
    Sketcher.Constraint("Coincident", 0, 2, 1, 1),
    Sketcher.Constraint("Coincident", 1, 2, 2, 1),
    Sketcher.Constraint("Coincident", 2, 2, 3, 1),
    Sketcher.Constraint("Coincident", 3, 2, 0, 1),
    Sketcher.Constraint("Horizontal", 0),
    Sketcher.Constraint("Vertical", 1),
    Sketcher.Constraint("Horizontal", 2),
    Sketcher.Constraint("Vertical", 3),
    Sketcher.Constraint("Equal", 2, 1),
    Sketcher.Constraint("DistanceX", 0, 2, 0, 1, Q("90 mm")),
    Sketcher.Constraint("DistanceX", 0, 2, -1, 1, Q("205.775987 mm")),
    Sketcher.Constraint("DistanceY", 0, 2, -1, 1, Q("9.919806 mm")),
])
pad20 = doc.addObject("PartDesign::Pad", "Pad019")
body.addObject(pad20)
pad20.Profile = sketch22
pad20.Length = 90
pad20.Reversed = True

# Sketch on YZ plane
sketch23 = doc.addObject("Sketcher::SketchObject", "Sketch022")
body.addObject(sketch23)
sketch23.AttachmentSupport = (doc.YZ_Plane, [""])
sketch23.MapMode = "FlatFace"
sketch23.AttachmentOffset = App.Placement(Vector(0, 0, -493.464001), App.Rotation())
sketch23.addGeometry([
    Part.LineSegment(Vector(28, 20, 0), Vector(-62, 20, 0)),
    Part.LineSegment(Vector(-62, 20, 0), Vector(-62, 110, 0)),
    Part.LineSegment(Vector(-62, 110, 0), Vector(28, 110, 0)),
    Part.LineSegment(Vector(28, 110, 0), Vector(28, 20, 0)),
], False)
sketch23.addConstraint([
    Sketcher.Constraint("Coincident", 0, 2, 1, 1),
    Sketcher.Constraint("Coincident", 1, 2, 2, 1),
    Sketcher.Constraint("Coincident", 2, 2, 3, 1),
    Sketcher.Constraint("Coincident", 3, 2, 0, 1),
    Sketcher.Constraint("Horizontal", 0),
    Sketcher.Constraint("Vertical", 1),
    Sketcher.Constraint("Horizontal", 2),
    Sketcher.Constraint("Vertical", 3),
    Sketcher.Constraint("Equal", 2, 1),
    Sketcher.Constraint("DistanceX", 0, 2, 0, 1, Q("90 mm")),
    Sketcher.Constraint("DistanceY", -1, 1, 0, 2, Q("19.859072 mm")),
    Sketcher.Constraint("DistanceX", 0, 2, -1, 1, Q("61.636764 mm")),
])
pad21 = doc.addObject("PartDesign::Pad", "Pad020")
body.addObject(pad21)
pad21.Profile = sketch23
pad21.Length = 90
pad21.Reversed = True

# Sketch on YZ plane
sketch24 = doc.addObject("Sketcher::SketchObject", "Sketch023")
body.addObject(sketch24)
sketch24.AttachmentSupport = (doc.YZ_Plane, [""])
sketch24.MapMode = "FlatFace"
sketch24.AttachmentOffset = App.Placement(Vector(0, 0, -500.671854), App.Rotation())
sketch24.addGeometry([
    Part.LineSegment(Vector(116, -4, 0), Vector(26, -4, 0)),
    Part.LineSegment(Vector(26, -4, 0), Vector(26, 86, 0)),
    Part.LineSegment(Vector(26, 86, 0), Vector(116, 86, 0)),
    Part.LineSegment(Vector(116, 86, 0), Vector(116, -4, 0)),
], False)
sketch24.addConstraint([
    Sketcher.Constraint("Coincident", 0, 2, 1, 1),
    Sketcher.Constraint("Coincident", 1, 2, 2, 1),
    Sketcher.Constraint("Coincident", 2, 2, 3, 1),
    Sketcher.Constraint("Coincident", 3, 2, 0, 1),
    Sketcher.Constraint("Horizontal", 0),
    Sketcher.Constraint("Vertical", 1),
    Sketcher.Constraint("Horizontal", 2),
    Sketcher.Constraint("Vertical", 3),
    Sketcher.Constraint("Equal", 2, 1),
    Sketcher.Constraint("DistanceX", 0, 2, 0, 1, Q("90 mm")),
    Sketcher.Constraint("DistanceX", -1, 1, 0, 2, Q("26.103775 mm")),
    Sketcher.Constraint("DistanceY", 0, 2, -1, 1, Q("4.037307 mm")),
])
pad22 = doc.addObject("PartDesign::Pad", "Pad021")
body.addObject(pad22)
pad22.Profile = sketch24
pad22.Length = 90
pad22.Reversed = True

# Sketch on YZ plane
sketch25 = doc.addObject("Sketcher::SketchObject", "Sketch024")
body.addObject(sketch25)
sketch25.AttachmentSupport = (doc.YZ_Plane, [""])
sketch25.MapMode = "FlatFace"
sketch25.AttachmentOffset = App.Placement(Vector(0, 0, -590.671854), App.Rotation())
sketch25.addGeometry([
    Part.LineSegment(Vector(117, 15, 0), Vector(27, 15, 0)),
    Part.LineSegment(Vector(27, 15, 0), Vector(27, 105, 0)),
    Part.LineSegment(Vector(27, 105, 0), Vector(117, 105, 0)),
    Part.LineSegment(Vector(117, 105, 0), Vector(117, 15, 0)),
], False)
sketch25.addConstraint([
    Sketcher.Constraint("Coincident", 0, 2, 1, 1),
    Sketcher.Constraint("Coincident", 1, 2, 2, 1),
    Sketcher.Constraint("Coincident", 2, 2, 3, 1),
    Sketcher.Constraint("Coincident", 3, 2, 0, 1),
    Sketcher.Constraint("Horizontal", 0),
    Sketcher.Constraint("Vertical", 1),
    Sketcher.Constraint("Horizontal", 2),
    Sketcher.Constraint("Vertical", 3),
    Sketcher.Constraint("Equal", 2, 1),
    Sketcher.Constraint("DistanceX", 0, 2, 0, 1, Q("90 mm")),
    Sketcher.Constraint("DistanceX", -1, 1, 0, 2, Q("27.436092 mm")),
    Sketcher.Constraint("DistanceY", -1, 1, 0, 2, Q("14.796773 mm")),
])
pad23 = doc.addObject("PartDesign::Pad", "Pad022")
body.addObject(pad23)
pad23.Profile = sketch25
pad23.Length = 90
pad23.Reversed = True

# Sketch on YZ plane
sketch26 = doc.addObject("Sketcher::SketchObject", "Sketch025")
body.addObject(sketch26)
sketch26.AttachmentSupport = (doc.YZ_Plane, [""])
sketch26.MapMode = "FlatFace"
sketch26.AttachmentOffset = App.Placement(Vector(0, 0, -493.464001), App.Rotation())
sketch26.addGeometry([
    Part.LineSegment(Vector(-34, 12, 0), Vector(-124, 12, 0)),
    Part.LineSegment(Vector(-124, 12, 0), Vector(-124, 102, 0)),
    Part.LineSegment(Vector(-124, 102, 0), Vector(-34, 102, 0)),
    Part.LineSegment(Vector(-34, 102, 0), Vector(-34, 12, 0)),
], False)
sketch26.addConstraint([
    Sketcher.Constraint("Coincident", 0, 2, 1, 1),
    Sketcher.Constraint("Coincident", 1, 2, 2, 1),
    Sketcher.Constraint("Coincident", 2, 2, 3, 1),
    Sketcher.Constraint("Coincident", 3, 2, 0, 1),
    Sketcher.Constraint("Horizontal", 0),
    Sketcher.Constraint("Vertical", 1),
    Sketcher.Constraint("Horizontal", 2),
    Sketcher.Constraint("Vertical", 3),
    Sketcher.Constraint("Equal", 2, 1),
    Sketcher.Constraint("DistanceX", 0, 2, 0, 1, Q("90 mm")),
    Sketcher.Constraint("DistanceX", 0, 2, -1, 1, Q("123.670769 mm")),
    Sketcher.Constraint("DistanceY", -1, 1, 0, 2, Q("12.292859 mm")),
])
pad24 = doc.addObject("PartDesign::Pad", "Pad023")
body.addObject(pad24)
pad24.Profile = sketch26
pad24.Length = 90
pad24.Reversed = True

# Sketch on YZ plane
sketch27 = doc.addObject("Sketcher::SketchObject", "Sketch026")
body.addObject(sketch27)
sketch27.AttachmentSupport = (doc.YZ_Plane, [""])
sketch27.MapMode = "FlatFace"
sketch27.AttachmentOffset = App.Placement(Vector(0, 0, -583.464001), App.Rotation())
sketch27.addGeometry([
    Part.LineSegment(Vector(-37, 18, 0), Vector(-127, 18, 0)),
    Part.LineSegment(Vector(-127, 18, 0), Vector(-127, 108, 0)),
    Part.LineSegment(Vector(-127, 108, 0), Vector(-37, 108, 0)),
    Part.LineSegment(Vector(-37, 108, 0), Vector(-37, 18, 0)),
], False)
sketch27.addConstraint([
    Sketcher.Constraint("Coincident", 0, 2, 1, 1),
    Sketcher.Constraint("Coincident", 1, 2, 2, 1),
    Sketcher.Constraint("Coincident", 2, 2, 3, 1),
    Sketcher.Constraint("Coincident", 3, 2, 0, 1),
    Sketcher.Constraint("Horizontal", 0),
    Sketcher.Constraint("Vertical", 1),
    Sketcher.Constraint("Horizontal", 2),
    Sketcher.Constraint("Vertical", 3),
    Sketcher.Constraint("Equal", 2, 1),
    Sketcher.Constraint("DistanceX", 0, 2, 0, 1, Q("90 mm")),
    Sketcher.Constraint("DistanceY", -1, 1, 0, 2, Q("18.451539 mm")),
    Sketcher.Constraint("DistanceX", 0, 2, -1, 1, Q("126.570753 mm")),
])
pad25 = doc.addObject("PartDesign::Pad", "Pad024")
body.addObject(pad25)
pad25.Profile = sketch27
pad25.Length = 90
pad25.Reversed = True

# Sketch on YZ plane
sketch28 = doc.addObject("Sketcher::SketchObject", "Sketch027")
body.addObject(sketch28)
sketch28.AttachmentSupport = (doc.YZ_Plane, [""])
sketch28.MapMode = "FlatFace"
sketch28.AttachmentOffset = App.Placement(Vector(0, 0, -680.671854), App.Rotation())
sketch28.addGeometry([
    Part.LineSegment(Vector(123, 4, 0), Vector(33, 4, 0)),
    Part.LineSegment(Vector(33, 4, 0), Vector(33, 94, 0)),
    Part.LineSegment(Vector(33, 94, 0), Vector(123, 94, 0)),
    Part.LineSegment(Vector(123, 94, 0), Vector(123, 4, 0)),
], False)
sketch28.addConstraint([
    Sketcher.Constraint("Coincident", 0, 2, 1, 1),
    Sketcher.Constraint("Coincident", 1, 2, 2, 1),
    Sketcher.Constraint("Coincident", 2, 2, 3, 1),
    Sketcher.Constraint("Coincident", 3, 2, 0, 1),
    Sketcher.Constraint("Horizontal", 0),
    Sketcher.Constraint("Vertical", 1),
    Sketcher.Constraint("Horizontal", 2),
    Sketcher.Constraint("Vertical", 3),
    Sketcher.Constraint("Equal", 2, 1),
    Sketcher.Constraint("DistanceX", 0, 2, 0, 1, Q("90 mm")),
    Sketcher.Constraint("DistanceY", -1, 1, 0, 2, Q("4.382659 mm")),
    Sketcher.Constraint("DistanceX", -1, 1, 0, 2, Q("32.849427 mm")),
])
pad26 = doc.addObject("PartDesign::Pad", "Pad025")
body.addObject(pad26)
pad26.Profile = sketch28
pad26.Length = 90
pad26.Reversed = True

# Sketch on YZ plane
sketch29 = doc.addObject("Sketcher::SketchObject", "Sketch028")
body.addObject(sketch29)
sketch29.AttachmentSupport = (doc.YZ_Plane, [""])
sketch29.MapMode = "FlatFace"
sketch29.AttachmentOffset = App.Placement(Vector(0, 0, -673.464001), App.Rotation())
sketch29.addGeometry([
    Part.LineSegment(Vector(-38, 18, 0), Vector(-128, 18, 0)),
    Part.LineSegment(Vector(-128, 18, 0), Vector(-128, 108, 0)),
    Part.LineSegment(Vector(-128, 108, 0), Vector(-38, 108, 0)),
    Part.LineSegment(Vector(-38, 108, 0), Vector(-38, 18, 0)),
], False)
sketch29.addConstraint([
    Sketcher.Constraint("Coincident", 0, 2, 1, 1),
    Sketcher.Constraint("Coincident", 1, 2, 2, 1),
    Sketcher.Constraint("Coincident", 2, 2, 3, 1),
    Sketcher.Constraint("Coincident", 3, 2, 0, 1),
    Sketcher.Constraint("Horizontal", 0),
    Sketcher.Constraint("Vertical", 1),
    Sketcher.Constraint("Horizontal", 2),
    Sketcher.Constraint("Vertical", 3),
    Sketcher.Constraint("Equal", 2, 1),
    Sketcher.Constraint("DistanceX", 0, 2, 0, 1, Q("90 mm")),
    Sketcher.Constraint("DistanceX", 0, 2, -1, 1, Q("128.439943 mm")),
    Sketcher.Constraint("DistanceY", -1, 1, 0, 2, Q("17.730556 mm")),
])
pad27 = doc.addObject("PartDesign::Pad", "Pad026")
body.addObject(pad27)
pad27.Profile = sketch29
pad27.Length = 90
pad27.Reversed = True

# Sketch on YZ plane
sketch30 = doc.addObject("Sketcher::SketchObject", "Sketch029")
body.addObject(sketch30)
sketch30.AttachmentSupport = (doc.YZ_Plane, [""])
sketch30.MapMode = "FlatFace"
sketch30.AttachmentOffset = App.Placement(Vector(0, 0, -770.671854), App.Rotation())
sketch30.addGeometry([
    Part.LineSegment(Vector(126, 22, 0), Vector(36, 22, 0)),
    Part.LineSegment(Vector(36, 22, 0), Vector(36, 112, 0)),
    Part.LineSegment(Vector(36, 112, 0), Vector(126, 112, 0)),
    Part.LineSegment(Vector(126, 112, 0), Vector(126, 22, 0)),
], False)
sketch30.addConstraint([
    Sketcher.Constraint("Coincident", 0, 2, 1, 1),
    Sketcher.Constraint("Coincident", 1, 2, 2, 1),
    Sketcher.Constraint("Coincident", 2, 2, 3, 1),
    Sketcher.Constraint("Coincident", 3, 2, 0, 1),
    Sketcher.Constraint("Horizontal", 0),
    Sketcher.Constraint("Vertical", 1),
    Sketcher.Constraint("Horizontal", 2),
    Sketcher.Constraint("Vertical", 3),
    Sketcher.Constraint("Equal", 2, 1),
    Sketcher.Constraint("DistanceX", 0, 2, 0, 1, Q("90 mm")),
    Sketcher.Constraint("DistanceX", -1, 1, 0, 2, Q("35.739967 mm")),
    Sketcher.Constraint("DistanceY", -1, 1, 0, 2, Q("21.535986 mm")),
])
pad28 = doc.addObject("PartDesign::Pad", "Pad027")
body.addObject(pad28)
pad28.Profile = sketch30
pad28.Length = 90
pad28.Reversed = True

# Sketch on YZ plane
sketch31 = doc.addObject("Sketcher::SketchObject", "Sketch030")
body.addObject(sketch31)
sketch31.AttachmentSupport = (doc.YZ_Plane, [""])
sketch31.MapMode = "FlatFace"
sketch31.AttachmentOffset = App.Placement(Vector(0, 0, -763.464001), App.Rotation())
sketch31.addGeometry([
    Part.LineSegment(Vector(-26, 48, 0), Vector(-116, 48, 0)),
    Part.LineSegment(Vector(-116, 48, 0), Vector(-116, 138, 0)),
    Part.LineSegment(Vector(-116, 138, 0), Vector(-26, 138, 0)),
    Part.LineSegment(Vector(-26, 138, 0), Vector(-26, 48, 0)),
], False)
sketch31.addConstraint([
    Sketcher.Constraint("Coincident", 0, 2, 1, 1),
    Sketcher.Constraint("Coincident", 1, 2, 2, 1),
    Sketcher.Constraint("Coincident", 2, 2, 3, 1),
    Sketcher.Constraint("Coincident", 3, 2, 0, 1),
    Sketcher.Constraint("Horizontal", 0),
    Sketcher.Constraint("Vertical", 1),
    Sketcher.Constraint("Horizontal", 2),
    Sketcher.Constraint("Vertical", 3),
    Sketcher.Constraint("Equal", 2, 1),
    Sketcher.Constraint("DistanceX", 0, 2, 0, 1, Q("90 mm")),
    Sketcher.Constraint("DistanceY", -1, 1, 0, 2, Q("47.929039 mm")),
    Sketcher.Constraint("DistanceX", 0, 2, -1, 1, Q("115.503756 mm")),
])
pad29 = doc.addObject("PartDesign::Pad", "Pad028")
body.addObject(pad29)
pad29.Profile = sketch31
pad29.Length = 90
pad29.Reversed = True

# Sketch on XZ plane
sketch32 = doc.addObject("Sketcher::SketchObject", "Sketch031")
body.addObject(sketch32)
sketch32.AttachmentSupport = (doc.XZ_Plane, [""])
sketch32.MapMode = "FlatFace"
sketch32.AttachmentOffset = App.Placement(Vector(0, 0, 205.775987), App.Rotation())
sketch32.addGeometry([
    Part.LineSegment(Vector(-505, -10, 0), Vector(-415, -10, 0)),
    Part.LineSegment(Vector(-415, -10, 0), Vector(-415, 80, 0)),
    Part.LineSegment(Vector(-415, 80, 0), Vector(-505, 80, 0)),
    Part.LineSegment(Vector(-505, 80, 0), Vector(-505, -10, 0)),
], False)
sketch32.addConstraint([
    Sketcher.Constraint("Coincident", 0, 2, 1, 1),
    Sketcher.Constraint("Coincident", 1, 2, 2, 1),
    Sketcher.Constraint("Coincident", 2, 2, 3, 1),
    Sketcher.Constraint("Coincident", 3, 2, 0, 1),
    Sketcher.Constraint("Horizontal", 0),
    Sketcher.Constraint("Vertical", 1),
    Sketcher.Constraint("Horizontal", 2),
    Sketcher.Constraint("Vertical", 3),
    Sketcher.Constraint("Equal", 2, 1),
    Sketcher.Constraint("DistanceX", 0, 1, 0, 2, Q("90 mm")),
    Sketcher.Constraint("DistanceX", 0, 2, -1, 1, Q("415.115909 mm")),
    Sketcher.Constraint("DistanceY", 0, 2, -1, 1, Q("10.498805 mm")),
])
pad30 = doc.addObject("PartDesign::Pad", "Pad029")
body.addObject(pad30)
pad30.Profile = sketch32
pad30.Length = 90

# Sketch on YZ plane
sketch33 = doc.addObject("Sketcher::SketchObject", "Sketch032")
body.addObject(sketch33)
sketch33.AttachmentSupport = (doc.YZ_Plane, [""])
sketch33.MapMode = "FlatFace"
sketch33.AttachmentOffset = App.Placement(Vector(0, 0, -392.191832), App.Rotation())
sketch33.addGeometry([
    Part.LineSegment(Vector(217, -8, 0), Vector(127, -8, 0)),
    Part.LineSegment(Vector(127, -8, 0), Vector(127, 82, 0)),
    Part.LineSegment(Vector(127, 82, 0), Vector(217, 82, 0)),
    Part.LineSegment(Vector(217, 82, 0), Vector(217, -8, 0)),
], False)
sketch33.addConstraint([
    Sketcher.Constraint("Coincident", 0, 2, 1, 1),
    Sketcher.Constraint("Coincident", 1, 2, 2, 1),
    Sketcher.Constraint("Coincident", 2, 2, 3, 1),
    Sketcher.Constraint("Coincident", 3, 2, 0, 1),
    Sketcher.Constraint("Horizontal", 0),
    Sketcher.Constraint("Vertical", 1),
    Sketcher.Constraint("Horizontal", 2),
    Sketcher.Constraint("Vertical", 3),
    Sketcher.Constraint("Equal", 2, 1),
    Sketcher.Constraint("DistanceX", 0, 2, 0, 1, Q("90 mm")),
    Sketcher.Constraint("DistanceX", -1, 1, 0, 2, Q("126.812235 mm")),
    Sketcher.Constraint("DistanceY", 0, 2, -1, 1, Q("7.846358 mm")),
])
pad31 = doc.addObject("PartDesign::Pad", "Pad030")
body.addObject(pad31)
pad31.Profile = sketch33
pad31.Length = 90
pad31.Reversed = True

# Sketch on XZ plane
sketch34 = doc.addObject("Sketcher::SketchObject", "Sketch033")
body.addObject(sketch34)
sketch34.AttachmentSupport = (doc.XZ_Plane, [""])
sketch34.MapMode = "FlatFace"
sketch34.AttachmentOffset = App.Placement(Vector(0, 0, -216.812235), App.Rotation())
sketch34.addGeometry([
    Part.LineSegment(Vector(-418, -10, 0), Vector(-508, -10, 0)),
    Part.LineSegment(Vector(-508, -10, 0), Vector(-508, 80, 0)),
    Part.LineSegment(Vector(-508, 80, 0), Vector(-418, 80, 0)),
    Part.LineSegment(Vector(-418, 80, 0), Vector(-418, -10, 0)),
], False)
sketch34.addConstraint([
    Sketcher.Constraint("Coincident", 0, 2, 1, 1),
    Sketcher.Constraint("Coincident", 1, 2, 2, 1),
    Sketcher.Constraint("Coincident", 2, 2, 3, 1),
    Sketcher.Constraint("Coincident", 3, 2, 0, 1),
    Sketcher.Constraint("Horizontal", 0),
    Sketcher.Constraint("Vertical", 1),
    Sketcher.Constraint("Horizontal", 2),
    Sketcher.Constraint("Vertical", 3),
    Sketcher.Constraint("Equal", 2, 1),
    Sketcher.Constraint("DistanceX", 0, 2, 0, 1, Q("90 mm")),
    Sketcher.Constraint("DistanceX", 0, 2, -1, 1, Q("508.19392 mm")),
    Sketcher.Constraint("DistanceY", 0, 2, -1, 1, Q("9.854549 mm")),
])
pad32 = doc.addObject("PartDesign::Pad", "Pad031")
body.addObject(pad32)
pad32.Profile = sketch34
pad32.Length = 90
pad32.Reversed = True

doc.recompute()
